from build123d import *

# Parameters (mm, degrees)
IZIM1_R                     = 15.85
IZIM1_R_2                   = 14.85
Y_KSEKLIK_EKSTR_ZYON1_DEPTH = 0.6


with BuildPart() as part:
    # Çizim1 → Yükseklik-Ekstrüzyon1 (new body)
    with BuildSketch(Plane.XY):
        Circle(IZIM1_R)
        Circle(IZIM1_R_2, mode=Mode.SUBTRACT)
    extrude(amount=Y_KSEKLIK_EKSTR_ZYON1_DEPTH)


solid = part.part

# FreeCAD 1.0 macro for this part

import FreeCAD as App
import Part
import Sketcher

V = App.Vector

doc = App.newDocument("Part")
params = doc.addObject("Spreadsheet::Sheet", "Params")
for row, (alias, value) in enumerate([
    ("sketch1_diameter", "31.7 mm"),
    ("sketch1_diameter2", "29.7 mm"),
    ("pad1_length", "0.6 mm"),
], start=1):
    params.set(f"A{row}", alias)
    params.set(f"B{row}", "=" + value)
    params.setAlias(f"B{row}", alias)

body = doc.addObject("PartDesign::Body", "Body")

# Sketch on XY plane
sketch1 = body.newObject("Sketcher::SketchObject", "Sketch")
sketch1.AttachmentSupport = (doc.getObject("XY_Plane"), [""])
sketch1.MapMode = "FlatFace"
sketch1.addGeometry(Part.Circle(V(0, 0, 0), V(0, 0, 1), 16), False)
sketch1.addGeometry(Part.Circle(V(0, 0, 0), V(0, 0, 1), 15), False)
sketch1.addConstraint(Sketcher.Constraint("Coincident", 0, 3, -1, 1))
sketch1.addConstraint(Sketcher.Constraint("Coincident", 1, 3, -1, 1))
sketch1.addConstraint(Sketcher.Constraint("Diameter", 0, 31.7))
sketch1.addConstraint(Sketcher.Constraint("Diameter", 1, 29.7))
sketch1.setExpression("Constraints[2]", "Params.sketch1_diameter")
sketch1.setExpression("Constraints[3]", "Params.sketch1_diameter2")
pad1 = body.newObject("PartDesign::Pad", "Pad")
pad1.Profile = sketch1
pad1.setExpression("Length", "Params.pad1_length")

doc.recompute()
